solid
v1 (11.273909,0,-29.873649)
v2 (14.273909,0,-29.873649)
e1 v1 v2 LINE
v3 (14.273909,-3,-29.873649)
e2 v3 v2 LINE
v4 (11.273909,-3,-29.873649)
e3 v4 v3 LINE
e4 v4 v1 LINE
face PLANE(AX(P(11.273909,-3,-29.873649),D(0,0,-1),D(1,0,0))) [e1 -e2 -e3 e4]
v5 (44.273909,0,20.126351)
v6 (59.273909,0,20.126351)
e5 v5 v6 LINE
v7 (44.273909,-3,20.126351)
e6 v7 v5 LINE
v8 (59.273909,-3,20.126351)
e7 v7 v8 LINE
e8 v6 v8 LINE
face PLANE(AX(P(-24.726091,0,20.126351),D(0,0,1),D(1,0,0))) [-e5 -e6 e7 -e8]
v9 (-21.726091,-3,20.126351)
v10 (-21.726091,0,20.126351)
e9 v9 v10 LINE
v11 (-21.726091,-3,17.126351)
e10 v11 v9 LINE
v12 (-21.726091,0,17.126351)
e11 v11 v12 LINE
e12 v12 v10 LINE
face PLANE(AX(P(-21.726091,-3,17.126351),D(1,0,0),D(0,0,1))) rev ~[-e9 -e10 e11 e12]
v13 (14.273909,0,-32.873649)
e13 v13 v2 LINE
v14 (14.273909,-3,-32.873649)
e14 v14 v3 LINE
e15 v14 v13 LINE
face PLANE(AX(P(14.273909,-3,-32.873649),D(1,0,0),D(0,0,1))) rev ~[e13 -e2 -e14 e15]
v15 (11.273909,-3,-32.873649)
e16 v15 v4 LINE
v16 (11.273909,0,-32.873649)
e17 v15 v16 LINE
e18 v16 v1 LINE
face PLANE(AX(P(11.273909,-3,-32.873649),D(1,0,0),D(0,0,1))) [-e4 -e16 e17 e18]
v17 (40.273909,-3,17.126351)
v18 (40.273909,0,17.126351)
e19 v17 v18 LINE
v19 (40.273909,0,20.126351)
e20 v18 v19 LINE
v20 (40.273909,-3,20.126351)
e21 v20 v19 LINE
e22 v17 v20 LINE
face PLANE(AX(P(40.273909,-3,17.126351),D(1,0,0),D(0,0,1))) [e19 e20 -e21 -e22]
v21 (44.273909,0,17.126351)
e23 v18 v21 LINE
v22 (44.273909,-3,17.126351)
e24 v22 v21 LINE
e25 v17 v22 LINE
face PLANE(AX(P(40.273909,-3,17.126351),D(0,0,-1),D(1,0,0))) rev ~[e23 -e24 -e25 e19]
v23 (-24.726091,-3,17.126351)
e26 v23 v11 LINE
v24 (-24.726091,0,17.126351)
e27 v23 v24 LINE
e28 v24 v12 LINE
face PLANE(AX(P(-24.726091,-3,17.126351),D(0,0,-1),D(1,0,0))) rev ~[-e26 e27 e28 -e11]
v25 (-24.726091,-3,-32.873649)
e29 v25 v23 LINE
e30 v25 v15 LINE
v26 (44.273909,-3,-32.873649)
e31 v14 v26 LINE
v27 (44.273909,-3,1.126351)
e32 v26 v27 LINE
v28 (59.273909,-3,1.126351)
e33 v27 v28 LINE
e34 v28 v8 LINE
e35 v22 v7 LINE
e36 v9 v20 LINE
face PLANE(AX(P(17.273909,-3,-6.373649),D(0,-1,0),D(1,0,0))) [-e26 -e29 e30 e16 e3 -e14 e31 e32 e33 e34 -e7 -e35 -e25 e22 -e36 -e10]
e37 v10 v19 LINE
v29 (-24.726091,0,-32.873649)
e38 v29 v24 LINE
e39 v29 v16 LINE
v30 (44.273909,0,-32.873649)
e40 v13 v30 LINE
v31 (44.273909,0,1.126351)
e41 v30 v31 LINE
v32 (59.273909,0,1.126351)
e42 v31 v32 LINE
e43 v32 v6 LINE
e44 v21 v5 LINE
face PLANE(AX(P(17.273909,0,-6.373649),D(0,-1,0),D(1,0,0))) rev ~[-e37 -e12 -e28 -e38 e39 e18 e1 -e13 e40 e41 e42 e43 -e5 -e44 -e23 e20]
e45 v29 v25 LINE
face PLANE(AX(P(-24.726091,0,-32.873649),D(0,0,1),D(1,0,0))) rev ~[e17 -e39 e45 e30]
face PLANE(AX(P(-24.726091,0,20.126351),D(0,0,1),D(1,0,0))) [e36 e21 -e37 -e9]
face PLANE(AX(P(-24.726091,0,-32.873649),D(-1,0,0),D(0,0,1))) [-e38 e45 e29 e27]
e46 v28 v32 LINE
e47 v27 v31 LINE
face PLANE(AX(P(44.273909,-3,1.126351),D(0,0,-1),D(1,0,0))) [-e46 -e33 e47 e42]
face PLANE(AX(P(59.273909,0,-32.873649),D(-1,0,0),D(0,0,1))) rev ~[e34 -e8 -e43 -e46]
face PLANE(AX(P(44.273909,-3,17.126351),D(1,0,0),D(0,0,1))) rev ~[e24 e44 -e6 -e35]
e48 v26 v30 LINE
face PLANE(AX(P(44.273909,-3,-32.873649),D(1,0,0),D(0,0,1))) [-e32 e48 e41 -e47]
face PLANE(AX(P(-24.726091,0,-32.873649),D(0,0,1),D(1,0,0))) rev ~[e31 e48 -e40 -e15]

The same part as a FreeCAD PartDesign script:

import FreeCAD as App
import Part
import Sketcher
Q = App.Units.Quantity

doc = App.newDocument("Part")
params = doc.addObject("Spreadsheet::Sheet", "Params")
for row, (alias, value) in enumerate([
    ("sketch1_width", "84 mm"),
    ("sketch1_height", "53 mm"),
    ("pad1_length", "3 mm"),
    ("sketch2_width", "15 mm"),
    ("sketch2_height", "34 mm"),
    ("pocket1_length", "25 mm"),
    ("sketch3_width", "4 mm"),
    ("sketch3_height", "3 mm"),
    ("pocket2_length", "25 mm"),
    ("sketch4_width", "3 mm"),
    ("pocket3_length", "25 mm"),
    ("sketch5_width", "3 mm"),
    ("pocket4_length", "25 mm"),
], start=1):
    params.set(f"A{row}", alias)
    params.set(f"B{row}", "=" + value)
    params.setAlias(f"B{row}", alias)

body = doc.addObject("PartDesign::Body", "Body")

# Sketch on XZ plane
sketch1 = body.newObject("Sketcher::SketchObject", "Sketch")
sketch1.AttachmentSupport = (doc.getObject("XZ_Plane"), [""])
sketch1.MapMode = "FlatFace"
sketch1.addGeometry([
    Part.LineSegment(App.Vector(-25, 20, 0), App.Vector(-25, -33, 0)),
    Part.LineSegment(App.Vector(-25, -33, 0), App.Vector(59, -33, 0)),
    Part.LineSegment(App.Vector(59, -33, 0), App.Vector(59, 20, 0)),
    Part.LineSegment(App.Vector(59, 20, 0), App.Vector(-25, 20, 0)),
], False)
sketch1.addConstraint([
    Sketcher.Constraint("Coincident", 0, 2, 1, 1),
    Sketcher.Constraint("Coincident", 1, 2, 2, 1),
    Sketcher.Constraint("Coincident", 2, 2, 3, 1),
    Sketcher.Constraint("Coincident", 3, 2, 0, 1),
    Sketcher.Constraint("Vertical", 0),
    Sketcher.Constraint("Horizontal", 1),
    Sketcher.Constraint("Vertical", 2),
    Sketcher.Constraint("Horizontal", 3),
    Sketcher.Constraint("DistanceX", 1, 1, 1, 2, Q("84 mm")),
    Sketcher.Constraint("DistanceY", 0, 2, 0, 1, Q("53 mm")),
    Sketcher.Constraint("DistanceX", 0, 2, -1, 1, Q("24.726091 mm")),
    Sketcher.Constraint("DistanceY", 0, 2, -1, 1, Q("32.873649 mm")),
])
sketch1.setExpression("Constraints[8]", "Params.sketch1_width")
sketch1.setExpression("Constraints[9]", "Params.sketch1_height")
pad1 = body.newObject("PartDesign::Pad", "Pad")
pad1.Profile = sketch1
pad1.setExpression("Length", "Params.pad1_length")

# Sketch on XZ plane
sketch2 = body.newObject("Sketcher::SketchObject", "Sketch001")
sketch2.AttachmentSupport = (doc.getObject("XZ_Plane"), [""])
sketch2.MapMode = "FlatFace"
sketch2.AttachmentOffset = App.Placement(App.Vector(0, 0, 3), App.Rotation())
sketch2.addGeometry([
    Part.LineSegment(App.Vector(44, 1, 0), App.Vector(44, -33, 0)),
    Part.LineSegment(App.Vector(44, -33, 0), App.Vector(59, -33, 0)),
    Part.LineSegment(App.Vector(59, -33, 0), App.Vector(59, 1, 0)),
    Part.LineSegment(App.Vector(59, 1, 0), App.Vector(44, 1, 0)),
], False)
sketch2.addConstraint([
    Sketcher.Constraint("Coincident", 0, 2, 1, 1),
    Sketcher.Constraint("Coincident", 1, 2, 2, 1),
    Sketcher.Constraint("Coincident", 2, 2, 3, 1),
    Sketcher.Constraint("Coincident", 3, 2, 0, 1),
    Sketcher.Constraint("Vertical", 0),
    Sketcher.Constraint("Horizontal", 1),
    Sketcher.Constraint("Vertical", 2),
    Sketcher.Constraint("Horizontal", 3),
    Sketcher.Constraint("DistanceX", 1, 1, 1, 2, Q("15 mm")),
    Sketcher.Constraint("DistanceY", 0, 2, 0, 1, Q("34 mm")),
    Sketcher.Constraint("DistanceX", -1, 1, 0, 2, Q("44.273909 mm")),
    Sketcher.Constraint("DistanceY", 0, 2, -1, 1, Q("32.873649 mm")),
])
sketch2.setExpression("Constraints[8]", "Params.sketch2_width")
sketch2.setExpression("Constraints[9]", "Params.sketch2_height")
pocket1 = body.newObject("PartDesign::Pocket", "Pocket")
pocket1.Profile = sketch2
pocket1.setExpression("Length", "Params.pocket1_length")

# Sketch on XZ plane
sketch3 = body.newObject("Sketcher::SketchObject", "Sketch002")
sketch3.AttachmentSupport = (doc.getObject("XZ_Plane"), [""])
sketch3.MapMode = "FlatFace"
sketch3.AttachmentOffset = App.Placement(App.Vector(0, 0, 3), App.Rotation())
sketch3.addGeometry([
    Part.LineSegment(App.Vector(40.3, 20.1, 0), App.Vector(40.3, 17.1, 0)),
    Part.LineSegment(App.Vector(40.3, 17.1, 0), App.Vector(44.3, 17.1, 0)),
    Part.LineSegment(App.Vector(44.3, 17.1, 0), App.Vector(44.3, 20.1, 0)),
    Part.LineSegment(App.Vector(44.3, 20.1, 0), App.Vector(40.3, 20.1, 0)),
], False)
sketch3.addConstraint([
    Sketcher.Constraint("Coincident", 0, 2, 1, 1),
    Sketcher.Constraint("Coincident", 1, 2, 2, 1),
    Sketcher.Constraint("Coincident", 2, 2, 3, 1),
    Sketcher.Constraint("Coincident", 3, 2, 0, 1),
    Sketcher.Constraint("Vertical", 0),
    Sketcher.Constraint("Horizontal", 1),
    Sketcher.Constraint("Vertical", 2),
    Sketcher.Constraint("Horizontal", 3),
    Sketcher.Constraint("DistanceX", 1, 1, 1, 2, Q("4 mm")),
    Sketcher.Constraint("DistanceY", 0, 2, 0, 1, Q("3 mm")),
    Sketcher.Constraint("DistanceX", -1, 1, 0, 2, Q("40.273909 mm")),
    Sketcher.Constraint("DistanceY", -1, 1, 0, 2, Q("17.126351 mm")),
])
sketch3.setExpression("Constraints[8]", "Params.sketch3_width")
sketch3.setExpression("Constraints[9]", "Params.sketch3_height")
pocket2 = body.newObject("PartDesign::Pocket", "Pocket001")
pocket2.Profile = sketch3
pocket2.setExpression("Length", "Params.pocket2_length")

# Sketch on XZ plane
sketch4 = body.newObject("Sketcher::SketchObject", "Sketch003")
sketch4.AttachmentSupport = (doc.getObject("XZ_Plane"), [""])
sketch4.MapMode = "FlatFace"
sketch4.AttachmentOffset = App.Placement(App.Vector(0, 0, 3), App.Rotation())
sketch4.addGeometry([
    Part.LineSegment(App.Vector(-24.7, 20.1, 0), App.Vector(-24.7, 17.1, 0)),
    Part.LineSegment(App.Vector(-24.7, 17.1, 0), App.Vector(-21.7, 17.1, 0)),
    Part.LineSegment(App.Vector(-21.7, 17.1, 0), App.Vector(-21.7, 20.1, 0)),
    Part.LineSegment(App.Vector(-21.7, 20.1, 0), App.Vector(-24.7, 20.1, 0)),
], False)
sketch4.addConstraint([
    Sketcher.Constraint("Coincident", 0, 2, 1, 1),
    Sketcher.Constraint("Coincident", 1, 2, 2, 1),
    Sketcher.Constraint("Coincident", 2, 2, 3, 1),
    Sketcher.Constraint("Coincident", 3, 2, 0, 1),
    Sketcher.Constraint("Vertical", 0),
    Sketcher.Constraint("Horizontal", 1),
    Sketcher.Constraint("Vertical", 2),
    Sketcher.Constraint("Horizontal", 3),
    Sketcher.Constraint("Equal", 3, 0),
    Sketcher.Constraint("DistanceX", 1, 1, 1, 2, Q("3 mm")),
    Sketcher.Constraint("DistanceX", 0, 2, -1, 1, Q("24.726091 mm")),
    Sketcher.Constraint("DistanceY", -1, 1, 0, 2, Q("17.126351 mm")),
])
sketch4.setExpression("Constraints[9]", "Params.sketch4_width")
pocket3 = body.newObject("PartDesign::Pocket", "Pocket002")
pocket3.Profile = sketch4
pocket3.setExpression("Length", "Params.pocket3_length")

# Sketch on XZ plane
sketch5 = body.newObject("Sketcher::SketchObject", "Sketch004")
sketch5.AttachmentSupport = (doc.getObject("XZ_Plane"), [""])
sketch5.MapMode = "FlatFace"
sketch5.AttachmentOffset = App.Placement(App.Vector(0, 0, 3), App.Rotation())
sketch5.addGeometry([
    Part.LineSegment(App.Vector(11.3, -29.9, 0), App.Vector(11.3, -32.9, 0)),
    Part.LineSegment(App.Vector(11.3, -32.9, 0), App.Vector(14.3, -32.9, 0)),
    Part.LineSegment(App.Vector(14.3, -32.9, 0), App.Vector(14.3, -29.9, 0)),
    Part.LineSegment(App.Vector(14.3, -29.9, 0), App.Vector(11.3, -29.9, 0)),
], False)
sketch5.addConstraint([
    Sketcher.Constraint("Coincident", 0, 2, 1, 1),
    Sketcher.Constraint("Coincident", 1, 2, 2, 1),
    Sketcher.Constraint("Coincident", 2, 2, 3, 1),
    Sketcher.Constraint("Coincident", 3, 2, 0, 1),
    Sketcher.Constraint("Vertical", 0),
    Sketcher.Constraint("Horizontal", 1),
    Sketcher.Constraint("Vertical", 2),
    Sketcher.Constraint("Horizontal", 3),
    Sketcher.Constraint("Equal", 3, 0),
    Sketcher.Constraint("DistanceX", 1, 1, 1, 2, Q("3 mm")),
    Sketcher.Constraint("DistanceX", -1, 1, 0, 2, Q("11.273909 mm")),
    Sketcher.Constraint("DistanceY", 0, 2, -1, 1, Q("32.873649 mm")),
])
sketch5.setExpression("Constraints[9]", "Params.sketch5_width")
pocket4 = body.newObject("PartDesign::Pocket", "Pocket003")
pocket4.Profile = sketch5
pocket4.setExpression("Length", "Params.pocket4_length")

doc.recompute()
